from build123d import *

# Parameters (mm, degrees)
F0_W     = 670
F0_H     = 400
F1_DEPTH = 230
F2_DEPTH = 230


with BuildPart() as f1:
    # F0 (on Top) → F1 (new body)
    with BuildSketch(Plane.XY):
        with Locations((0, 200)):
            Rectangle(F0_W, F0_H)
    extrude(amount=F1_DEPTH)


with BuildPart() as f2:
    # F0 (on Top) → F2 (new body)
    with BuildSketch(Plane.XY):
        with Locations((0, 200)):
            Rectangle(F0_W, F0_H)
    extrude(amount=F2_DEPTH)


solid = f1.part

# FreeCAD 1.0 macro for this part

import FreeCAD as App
import Part
import Sketcher

V = App.Vector


def add_polygon(sketch, points):
    """Adds a closed chain of lines whose ends are joined by coincident constraints."""
    first, n = sketch.GeometryCount, len(points)
    for a, b in zip(points, points[1:] + points[:1]):
        sketch.addGeometry(Part.LineSegment(App.Vector(*a, 0), App.Vector(*b, 0)), False)
    for i in range(n):
        sketch.addConstraint(Sketcher.Constraint("Coincident", first + i, 2, first + (i + 1) % n, 1))

doc = App.newDocument("Part")
params = doc.addObject("Spreadsheet::Sheet", "Params")
for row, (alias, value) in enumerate([
    ("sketch1_width", "670 mm"),
    ("sketch1_height", "400 mm"),
    ("pad1_length", "230 mm"),
    ("sketch2_width", "670 mm"),
    ("sketch2_height", "400 mm"),
    ("pad2_length", "230 mm"),
], start=1):
    params.set(f"A{row}", alias)
    params.set(f"B{row}", "=" + value)
    params.setAlias(f"B{row}", alias)

body = doc.addObject("PartDesign::Body", "Body")

# Sketch on XY plane
sketch1 = doc.addObject("Sketcher::SketchObject", "Sketch")
body.addObject(sketch1)
sketch1.AttachmentSupport = (doc.XY_Plane, [""])
sketch1.MapMode = "FlatFace"
add_polygon(sketch1, [(-335, 400), (-335, 0), (335, 0), (335, 400)])  # lines 0-3
sketch1.addConstraint(Sketcher.Constraint("Vertical", 0))
sketch1.addConstraint(Sketcher.Constraint("Horizontal", 1))
sketch1.addConstraint(Sketcher.Constraint("Vertical", 2))
sketch1.addConstraint(Sketcher.Constraint("Horizontal", 3))
sketch1.addConstraint(Sketcher.Constraint("Symmetric", 0, 2, 1, 2, -1, 1))
sketch1.addConstraint(Sketcher.Constraint("DistanceX", 1, 1, 1, 2, 670.0))
sketch1.addConstraint(Sketcher.Constraint("DistanceY", 0, 2, 0, 1, 400.0))
sketch1.setExpression("Constraints[9]", "Params.sketch1_width")
sketch1.setExpression("Constraints[10]", "Params.sketch1_height")
pad1 = doc.addObject("PartDesign::Pad", "Pad")
body.addObject(pad1)
pad1.Profile = sketch1
pad1.setExpression("Length", "Params.pad1_length")
body2 = doc.addObject("PartDesign::Body", "Body001")

# Sketch on XY plane
sketch2 = doc.addObject("Sketcher::SketchObject", "Sketch001")
body2.addObject(sketch2)
sketch2.AttachmentSupport = (doc.getObject("XY_Plane001"), [""])
sketch2.MapMode = "FlatFace"
add_polygon(sketch2, [(-335, 400), (-335, 0), (335, 0), (335, 400)])  # lines 0-3
sketch2.addConstraint(Sketcher.Constraint("Vertical", 0))
sketch2.addConstraint(Sketcher.Constraint("Horizontal", 1))
sketch2.addConstraint(Sketcher.Constraint("Vertical", 2))
sketch2.addConstraint(Sketcher.Constraint("Horizontal", 3))
sketch2.addConstraint(Sketcher.Constraint("Symmetric", 0, 2, 1, 2, -1, 1))
sketch2.addConstraint(Sketcher.Constraint("DistanceX", 1, 1, 1, 2, 670.0))
sketch2.addConstraint(Sketcher.Constraint("DistanceY", 0, 2, 0, 1, 400.0))
sketch2.setExpression("Constraints[9]", "Params.sketch2_width")
sketch2.setExpression("Constraints[10]", "Params.sketch2_height")
pad2 = doc.addObject("PartDesign::Pad", "Pad001")
body2.addObject(pad2)
pad2.Profile = sketch2
pad2.setExpression("Length", "Params.pad2_length")
body.Visibility = False

doc.recompute()
